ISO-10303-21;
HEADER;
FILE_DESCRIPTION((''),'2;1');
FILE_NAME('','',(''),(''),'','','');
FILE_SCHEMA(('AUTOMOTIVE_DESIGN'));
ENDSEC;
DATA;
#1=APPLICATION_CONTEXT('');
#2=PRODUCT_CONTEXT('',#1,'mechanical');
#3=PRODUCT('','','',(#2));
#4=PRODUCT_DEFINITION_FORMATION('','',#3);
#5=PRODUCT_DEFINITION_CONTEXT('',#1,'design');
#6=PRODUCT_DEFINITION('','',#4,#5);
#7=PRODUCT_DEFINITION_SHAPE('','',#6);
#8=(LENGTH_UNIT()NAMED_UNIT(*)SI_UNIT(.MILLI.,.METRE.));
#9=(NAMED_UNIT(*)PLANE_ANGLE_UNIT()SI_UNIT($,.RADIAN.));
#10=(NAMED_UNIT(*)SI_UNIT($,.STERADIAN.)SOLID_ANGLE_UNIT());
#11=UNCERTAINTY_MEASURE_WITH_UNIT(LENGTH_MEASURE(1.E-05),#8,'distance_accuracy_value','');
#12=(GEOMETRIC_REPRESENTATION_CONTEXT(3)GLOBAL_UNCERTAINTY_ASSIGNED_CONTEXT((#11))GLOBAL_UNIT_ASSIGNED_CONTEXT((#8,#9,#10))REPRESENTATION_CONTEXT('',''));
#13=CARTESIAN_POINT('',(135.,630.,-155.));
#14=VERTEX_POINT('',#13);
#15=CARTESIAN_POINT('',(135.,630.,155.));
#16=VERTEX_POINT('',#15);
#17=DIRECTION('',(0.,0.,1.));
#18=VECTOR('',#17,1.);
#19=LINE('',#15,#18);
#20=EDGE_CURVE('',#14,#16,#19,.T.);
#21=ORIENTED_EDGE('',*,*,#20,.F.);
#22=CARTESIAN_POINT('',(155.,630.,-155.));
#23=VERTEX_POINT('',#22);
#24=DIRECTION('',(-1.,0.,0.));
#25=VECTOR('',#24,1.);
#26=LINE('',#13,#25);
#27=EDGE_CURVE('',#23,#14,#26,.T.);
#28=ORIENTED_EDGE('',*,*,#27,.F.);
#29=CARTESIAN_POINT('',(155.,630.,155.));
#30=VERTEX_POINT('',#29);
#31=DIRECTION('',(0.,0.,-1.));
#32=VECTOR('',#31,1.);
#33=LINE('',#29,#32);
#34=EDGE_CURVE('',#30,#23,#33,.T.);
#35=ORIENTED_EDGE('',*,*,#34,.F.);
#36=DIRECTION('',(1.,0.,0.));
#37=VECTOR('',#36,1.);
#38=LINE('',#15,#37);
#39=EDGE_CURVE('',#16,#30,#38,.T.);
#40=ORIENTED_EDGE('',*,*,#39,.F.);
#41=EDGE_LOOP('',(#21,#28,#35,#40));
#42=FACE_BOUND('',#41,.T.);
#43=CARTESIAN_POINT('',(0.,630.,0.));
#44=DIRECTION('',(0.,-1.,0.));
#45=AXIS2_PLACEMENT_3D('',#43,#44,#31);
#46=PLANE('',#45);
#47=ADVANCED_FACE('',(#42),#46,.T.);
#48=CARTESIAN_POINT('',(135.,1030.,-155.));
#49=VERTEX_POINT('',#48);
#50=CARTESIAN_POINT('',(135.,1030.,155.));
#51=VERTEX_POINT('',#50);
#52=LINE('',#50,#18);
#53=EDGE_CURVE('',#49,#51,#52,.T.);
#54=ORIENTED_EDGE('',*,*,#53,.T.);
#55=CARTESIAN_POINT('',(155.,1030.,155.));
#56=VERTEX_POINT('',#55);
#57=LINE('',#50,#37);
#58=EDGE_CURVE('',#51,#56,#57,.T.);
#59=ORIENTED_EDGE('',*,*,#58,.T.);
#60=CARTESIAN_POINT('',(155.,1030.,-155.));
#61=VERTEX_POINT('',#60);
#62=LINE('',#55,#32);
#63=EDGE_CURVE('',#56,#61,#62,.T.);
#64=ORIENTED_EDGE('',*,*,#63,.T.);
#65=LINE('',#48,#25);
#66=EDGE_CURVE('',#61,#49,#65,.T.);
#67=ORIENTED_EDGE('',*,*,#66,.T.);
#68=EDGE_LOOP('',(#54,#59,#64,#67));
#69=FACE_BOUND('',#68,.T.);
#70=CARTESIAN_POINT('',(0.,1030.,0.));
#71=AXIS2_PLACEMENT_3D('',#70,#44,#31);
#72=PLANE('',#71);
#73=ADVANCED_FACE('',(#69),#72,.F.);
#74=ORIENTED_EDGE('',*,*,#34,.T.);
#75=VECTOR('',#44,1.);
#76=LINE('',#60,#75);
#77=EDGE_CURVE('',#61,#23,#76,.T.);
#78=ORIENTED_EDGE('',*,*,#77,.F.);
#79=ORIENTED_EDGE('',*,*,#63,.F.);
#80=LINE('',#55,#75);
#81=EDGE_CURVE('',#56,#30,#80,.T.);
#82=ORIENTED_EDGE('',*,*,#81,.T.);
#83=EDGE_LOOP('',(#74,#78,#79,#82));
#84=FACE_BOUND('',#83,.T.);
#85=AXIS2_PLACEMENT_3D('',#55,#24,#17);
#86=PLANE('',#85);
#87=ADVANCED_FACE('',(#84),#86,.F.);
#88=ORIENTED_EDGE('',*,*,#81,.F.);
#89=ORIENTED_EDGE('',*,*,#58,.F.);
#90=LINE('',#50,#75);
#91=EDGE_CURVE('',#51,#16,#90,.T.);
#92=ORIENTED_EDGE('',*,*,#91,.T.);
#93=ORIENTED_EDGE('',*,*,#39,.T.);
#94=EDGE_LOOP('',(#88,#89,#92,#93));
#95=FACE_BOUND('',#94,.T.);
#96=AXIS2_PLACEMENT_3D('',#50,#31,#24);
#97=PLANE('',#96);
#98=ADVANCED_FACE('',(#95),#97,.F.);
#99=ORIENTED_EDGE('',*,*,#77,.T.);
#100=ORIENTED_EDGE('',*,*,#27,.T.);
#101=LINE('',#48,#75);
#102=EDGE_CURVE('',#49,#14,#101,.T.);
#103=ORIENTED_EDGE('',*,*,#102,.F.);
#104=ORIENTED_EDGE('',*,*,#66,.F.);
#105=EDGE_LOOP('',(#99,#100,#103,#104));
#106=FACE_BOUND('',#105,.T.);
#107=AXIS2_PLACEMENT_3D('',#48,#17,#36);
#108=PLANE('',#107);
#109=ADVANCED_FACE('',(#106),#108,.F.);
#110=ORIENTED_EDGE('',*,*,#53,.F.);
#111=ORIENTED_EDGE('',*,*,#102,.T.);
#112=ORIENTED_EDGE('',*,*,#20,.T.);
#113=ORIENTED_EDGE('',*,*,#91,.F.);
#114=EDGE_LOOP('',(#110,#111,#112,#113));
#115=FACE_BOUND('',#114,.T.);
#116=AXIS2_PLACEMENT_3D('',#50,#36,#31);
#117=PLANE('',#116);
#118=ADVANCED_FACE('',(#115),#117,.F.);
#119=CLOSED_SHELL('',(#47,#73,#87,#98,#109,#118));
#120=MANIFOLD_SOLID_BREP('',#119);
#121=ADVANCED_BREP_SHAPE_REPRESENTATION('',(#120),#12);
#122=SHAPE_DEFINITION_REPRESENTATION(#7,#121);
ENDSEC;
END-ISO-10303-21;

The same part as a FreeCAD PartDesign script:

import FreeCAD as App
import Part
import Sketcher

V = App.Vector

doc = App.newDocument("Part")
body = doc.addObject("PartDesign::Body", "Body")

# Sketch on XZ plane
sketch1 = body.newObject("Sketcher::SketchObject", "Sketch")
sketch1.AttachmentSupport = (doc.getObject("XZ_Plane"), [""])
sketch1.MapMode = "FlatFace"
sketch1.AttachmentOffset = App.Placement(V(0, 0, -630), App.Rotation())
sketch1.addGeometry(Part.LineSegment(V(135, -155, 0), V(135, 155, 0)), False)
sketch1.addGeometry(Part.LineSegment(V(135, 155, 0), V(155, 155, 0)), False)
sketch1.addGeometry(Part.LineSegment(V(155, 155, 0), V(155, -155, 0)), False)
sketch1.addGeometry(Part.LineSegment(V(155, -155, 0), V(135, -155, 0)), False)
sketch1.addConstraint(Sketcher.Constraint("Coincident", 0, 2, 1, 1))
sketch1.addConstraint(Sketcher.Constraint("Coincident", 1, 2, 2, 1))
sketch1.addConstraint(Sketcher.Constraint("Coincident", 2, 2, 3, 1))
sketch1.addConstraint(Sketcher.Constraint("Coincident", 3, 2, 0, 1))
sketch1.addConstraint(Sketcher.Constraint("Vertical", 0))
sketch1.addConstraint(Sketcher.Constraint("Horizontal", 1))
sketch1.addConstraint(Sketcher.Constraint("Vertical", 2))
sketch1.addConstraint(Sketcher.Constraint("Horizontal", 3))
sketch1.addConstraint(Sketcher.Constraint("DistanceX", 1, 1, 1, 2, 20.0))
sketch1.addConstraint(Sketcher.Constraint("DistanceY", 0, 1, 0, 2, 310.0))
sketch1.addConstraint(Sketcher.Constraint("DistanceX", -1, 1, 0, 2, 135.0))
sketch1.addConstraint(Sketcher.Constraint("DistanceY", -1, 1, 0, 2, 155.0))
pad1 = body.newObject("PartDesign::Pad", "Pad")
pad1.Profile = sketch1
pad1.Length = 400
pad1.Reversed = True

doc.recompute()
